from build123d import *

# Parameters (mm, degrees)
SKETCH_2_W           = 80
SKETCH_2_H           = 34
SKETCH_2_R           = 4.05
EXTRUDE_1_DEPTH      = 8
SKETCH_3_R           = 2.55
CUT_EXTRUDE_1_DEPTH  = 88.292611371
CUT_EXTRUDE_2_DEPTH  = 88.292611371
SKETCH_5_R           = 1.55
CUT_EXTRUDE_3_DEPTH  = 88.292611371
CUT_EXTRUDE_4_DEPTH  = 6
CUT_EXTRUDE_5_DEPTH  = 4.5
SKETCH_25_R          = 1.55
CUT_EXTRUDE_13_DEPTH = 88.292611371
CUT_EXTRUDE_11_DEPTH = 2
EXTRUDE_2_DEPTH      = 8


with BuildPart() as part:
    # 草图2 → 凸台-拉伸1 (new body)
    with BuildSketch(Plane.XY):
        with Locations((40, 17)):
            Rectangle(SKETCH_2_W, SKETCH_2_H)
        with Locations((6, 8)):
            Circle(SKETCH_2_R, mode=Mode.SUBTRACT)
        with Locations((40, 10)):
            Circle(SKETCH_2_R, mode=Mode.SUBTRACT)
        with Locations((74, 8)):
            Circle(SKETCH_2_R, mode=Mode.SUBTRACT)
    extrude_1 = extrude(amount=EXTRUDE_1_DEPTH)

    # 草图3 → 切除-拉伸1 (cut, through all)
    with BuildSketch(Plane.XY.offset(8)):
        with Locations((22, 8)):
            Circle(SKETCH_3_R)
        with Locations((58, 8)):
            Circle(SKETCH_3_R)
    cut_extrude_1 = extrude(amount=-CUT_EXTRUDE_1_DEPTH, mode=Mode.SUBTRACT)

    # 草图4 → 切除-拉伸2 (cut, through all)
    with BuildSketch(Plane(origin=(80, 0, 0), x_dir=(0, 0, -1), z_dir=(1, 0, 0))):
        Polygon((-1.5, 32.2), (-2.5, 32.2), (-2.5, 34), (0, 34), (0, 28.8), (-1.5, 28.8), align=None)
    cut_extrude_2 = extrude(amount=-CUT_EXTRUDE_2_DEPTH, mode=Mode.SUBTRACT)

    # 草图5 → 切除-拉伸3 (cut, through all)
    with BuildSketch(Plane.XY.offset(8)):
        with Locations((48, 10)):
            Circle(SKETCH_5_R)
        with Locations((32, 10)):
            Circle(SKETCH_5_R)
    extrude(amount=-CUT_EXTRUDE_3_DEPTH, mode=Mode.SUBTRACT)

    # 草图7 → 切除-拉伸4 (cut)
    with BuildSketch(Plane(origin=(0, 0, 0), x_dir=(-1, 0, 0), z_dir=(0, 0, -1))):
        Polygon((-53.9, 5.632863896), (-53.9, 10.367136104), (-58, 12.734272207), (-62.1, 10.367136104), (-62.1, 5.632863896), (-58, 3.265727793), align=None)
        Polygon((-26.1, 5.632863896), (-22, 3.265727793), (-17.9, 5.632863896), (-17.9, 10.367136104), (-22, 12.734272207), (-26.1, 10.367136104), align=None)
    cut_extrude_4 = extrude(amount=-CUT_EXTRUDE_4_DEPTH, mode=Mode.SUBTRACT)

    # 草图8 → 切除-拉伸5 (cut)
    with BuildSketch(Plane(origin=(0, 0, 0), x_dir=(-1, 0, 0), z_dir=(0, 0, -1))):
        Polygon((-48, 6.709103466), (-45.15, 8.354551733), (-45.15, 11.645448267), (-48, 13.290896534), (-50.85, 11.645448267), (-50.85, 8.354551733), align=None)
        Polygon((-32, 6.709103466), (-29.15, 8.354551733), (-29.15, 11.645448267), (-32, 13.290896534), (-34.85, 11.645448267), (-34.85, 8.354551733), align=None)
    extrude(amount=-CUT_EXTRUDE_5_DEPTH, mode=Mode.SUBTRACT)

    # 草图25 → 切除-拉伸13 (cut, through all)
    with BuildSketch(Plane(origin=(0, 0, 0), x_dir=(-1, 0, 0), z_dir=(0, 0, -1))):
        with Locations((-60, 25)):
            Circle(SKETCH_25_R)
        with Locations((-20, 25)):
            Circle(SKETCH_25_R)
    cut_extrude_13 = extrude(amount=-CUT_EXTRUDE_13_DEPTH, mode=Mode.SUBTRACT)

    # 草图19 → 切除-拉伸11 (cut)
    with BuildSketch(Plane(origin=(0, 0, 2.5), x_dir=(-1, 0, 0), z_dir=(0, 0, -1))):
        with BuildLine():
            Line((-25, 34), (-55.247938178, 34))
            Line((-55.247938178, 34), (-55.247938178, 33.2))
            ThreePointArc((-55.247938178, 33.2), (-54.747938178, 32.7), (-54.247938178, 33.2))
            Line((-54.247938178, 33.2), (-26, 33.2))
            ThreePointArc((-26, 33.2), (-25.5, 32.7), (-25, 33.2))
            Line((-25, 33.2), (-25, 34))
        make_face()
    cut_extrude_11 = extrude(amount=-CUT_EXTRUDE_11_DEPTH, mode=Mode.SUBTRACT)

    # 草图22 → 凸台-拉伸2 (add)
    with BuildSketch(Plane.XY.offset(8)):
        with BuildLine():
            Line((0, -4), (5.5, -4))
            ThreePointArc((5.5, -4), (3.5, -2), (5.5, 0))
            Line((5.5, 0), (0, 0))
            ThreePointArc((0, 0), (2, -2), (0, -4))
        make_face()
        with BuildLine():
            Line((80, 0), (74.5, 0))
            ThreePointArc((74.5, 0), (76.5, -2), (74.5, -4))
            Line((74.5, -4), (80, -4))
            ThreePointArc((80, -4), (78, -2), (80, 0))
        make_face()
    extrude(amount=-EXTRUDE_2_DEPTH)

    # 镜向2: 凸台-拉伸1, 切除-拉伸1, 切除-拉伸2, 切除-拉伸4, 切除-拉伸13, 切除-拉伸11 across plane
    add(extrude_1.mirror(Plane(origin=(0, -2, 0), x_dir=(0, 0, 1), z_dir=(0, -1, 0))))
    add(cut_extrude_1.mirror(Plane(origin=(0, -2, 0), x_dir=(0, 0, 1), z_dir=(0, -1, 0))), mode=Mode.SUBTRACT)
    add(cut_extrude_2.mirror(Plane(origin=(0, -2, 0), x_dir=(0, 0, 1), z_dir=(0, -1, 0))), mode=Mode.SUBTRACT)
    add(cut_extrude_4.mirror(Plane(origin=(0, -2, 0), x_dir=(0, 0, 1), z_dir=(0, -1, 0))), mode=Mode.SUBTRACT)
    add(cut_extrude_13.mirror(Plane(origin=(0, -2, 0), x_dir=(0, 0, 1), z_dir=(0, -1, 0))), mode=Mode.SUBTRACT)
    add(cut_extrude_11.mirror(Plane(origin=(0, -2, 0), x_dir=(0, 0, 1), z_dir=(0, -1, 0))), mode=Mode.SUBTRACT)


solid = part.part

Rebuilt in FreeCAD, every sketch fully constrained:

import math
import FreeCAD as App
import Part
import Sketcher
from FreeCAD import Vector
Q = App.Units.Quantity


def add_polygon(sketch, points):
    """Adds a closed chain of lines whose ends are joined by coincident constraints."""
    first, n = sketch.GeometryCount, len(points)
    for a, b in zip(points, points[1:] + points[:1]):
        sketch.addGeometry(Part.LineSegment(App.Vector(*a, 0), App.Vector(*b, 0)), False)
    for i in range(n):
        sketch.addConstraint(Sketcher.Constraint("Coincident", first + i, 2, first + (i + 1) % n, 1))

doc = App.newDocument("Part")
body = doc.addObject("PartDesign::Body", "Body")

sketch1 = body.newObject("Sketcher::SketchObject", "Sketch")
sketch1.AttachmentSupport = (doc.getObject("XY_Plane"), [""])
sketch1.MapMode = "FlatFace"
add_polygon(sketch1, [(0, 34), (0, 0), (80, 0), (80, 34)])
sketch1.addGeometry(Part.Circle(Vector(6, 8, 0), Vector(0, 0, 1), 4), False)
sketch1.addGeometry(Part.Circle(Vector(74, 8, 0), Vector(0, 0, 1), 4), False)
sketch1.addGeometry(Part.Circle(Vector(40, 10, 0), Vector(0, 0, 1), 4), False)
sketch1.addConstraint([
    Sketcher.Constraint("Vertical", 0),
    Sketcher.Constraint("Horizontal", 1),
    Sketcher.Constraint("Vertical", 2),
    Sketcher.Constraint("Horizontal", 3),
    Sketcher.Constraint("Coincident", 0, 2, -1, 1),
    Sketcher.Constraint("Equal", 4, 5),
    Sketcher.Constraint("Equal", 5, 6),
    Sketcher.Constraint("Horizontal", 4, 3, 5, 3),
    Sketcher.Constraint("Diameter", 4, Q("8.1 mm")),
    Sketcher.Constraint("DistanceX", 1, 1, 1, 2, Q("80 mm")),
    Sketcher.Constraint("DistanceY", 0, 2, 0, 1, Q("34 mm")),
    Sketcher.Constraint("DistanceX", -1, 1, 4, 3, Q("6 mm")),
    Sketcher.Constraint("DistanceY", -1, 1, 4, 3, Q("8 mm")),
    Sketcher.Constraint("DistanceX", -1, 1, 5, 3, Q("74 mm")),
    Sketcher.Constraint("DistanceX", -1, 1, 6, 3, Q("40 mm")),
    Sketcher.Constraint("DistanceY", -1, 1, 6, 3, Q("10 mm")),
])
pad1 = body.newObject("PartDesign::Pad", "Pad")
pad1.Profile = sketch1
pad1.Length = 8

sketch2 = body.newObject("Sketcher::SketchObject", "Sketch001")
sketch2.AttachmentSupport = (doc.getObject("XY_Plane"), [""])
sketch2.MapMode = "FlatFace"
sketch2.AttachmentOffset = App.Placement(Vector(0, 0, 8), App.Rotation())
sketch2.addGeometry([
    Part.Circle(Vector(22, 8, 0), Vector(0, 0, 1), 2.5),
    Part.Circle(Vector(58, 8, 0), Vector(0, 0, 1), 2.5),
], False)
sketch2.addConstraint([
    Sketcher.Constraint("Equal", 0, 1),
    Sketcher.Constraint("Horizontal", 0, 3, 1, 3),
    Sketcher.Constraint("Diameter", 0, Q("5.1 mm")),
    Sketcher.Constraint("DistanceX", -1, 1, 0, 3, Q("22 mm")),
    Sketcher.Constraint("DistanceY", -1, 1, 0, 3, Q("8 mm")),
    Sketcher.Constraint("DistanceX", -1, 1, 1, 3, Q("58 mm")),
])
pocket1 = body.newObject("PartDesign::Pocket", "Pocket")
pocket1.Profile = sketch2
pocket1.Type = "ThroughAll"

sketch3 = body.newObject("Sketcher::SketchObject", "Sketch002")
sketch3.AttachmentSupport = (doc.getObject("YZ_Plane"), [""])
sketch3.MapMode = "FlatFace"
sketch3.AttachmentOffset = App.Placement(Vector(0, 0, 80), App.Rotation())
add_polygon(sketch3, [(32.2, 2.5), (32.2, 1.5), (28.8, 1.5), (28.8, 0), (34, 0), (34, 2.5)])
sketch3.addConstraint([
    Sketcher.Constraint("Vertical", 0),
    Sketcher.Constraint("Horizontal", 1),
    Sketcher.Constraint("Vertical", 2),
    Sketcher.Constraint("Horizontal", 3),
    Sketcher.Constraint("Vertical", 4),
    Sketcher.Constraint("Horizontal", 5),
    Sketcher.Constraint("PointOnObject", 2, 2, -1),
    Sketcher.Constraint("DistanceY", 0, 2, 0, 1, Q("1 mm")),
    Sketcher.Constraint("DistanceX", 1, 2, 1, 1, Q("3.4 mm")),
    Sketcher.Constraint("DistanceX", 3, 1, 3, 2, Q("5.2 mm")),
    Sketcher.Constraint("DistanceY", 2, 2, 2, 1, Q("1.5 mm")),
    Sketcher.Constraint("DistanceX", -1, 1, 3, 2, Q("34 mm")),
])
pocket2 = body.newObject("PartDesign::Pocket", "Pocket001")
pocket2.Profile = sketch3
pocket2.Type = "ThroughAll"

sketch4 = body.newObject("Sketcher::SketchObject", "Sketch003")
sketch4.AttachmentSupport = (doc.getObject("XY_Plane"), [""])
sketch4.MapMode = "FlatFace"
sketch4.AttachmentOffset = App.Placement(Vector(0, 0, 8), App.Rotation())
sketch4.addGeometry([
    Part.Circle(Vector(48, 10, 0), Vector(0, 0, 1), 1.6),
    Part.Circle(Vector(32, 10, 0), Vector(0, 0, 1), 1.6),
], False)
sketch4.addConstraint([
    Sketcher.Constraint("Equal", 0, 1),
    Sketcher.Constraint("Horizontal", 0, 3, 1, 3),
    Sketcher.Constraint("Diameter", 0, Q("3.1 mm")),
    Sketcher.Constraint("DistanceX", -1, 1, 0, 3, Q("48 mm")),
    Sketcher.Constraint("DistanceY", -1, 1, 0, 3, Q("10 mm")),
    Sketcher.Constraint("DistanceX", -1, 1, 1, 3, Q("32 mm")),
])
pocket3 = body.newObject("PartDesign::Pocket", "Pocket002")
pocket3.Profile = sketch4
pocket3.Type = "ThroughAll"

sketch5 = body.newObject("Sketcher::SketchObject", "Sketch004")
sketch5.AttachmentSupport = (doc.getObject("XY_Plane"), [""])
sketch5.MapMode = "FlatFace"
add_polygon(sketch5, [(53.9, 5.6), (53.9, 10.4), (58, 12.7), (62.1, 10.4), (62.1, 5.6), (58, 3.3)])
add_polygon(sketch5, [(26.1, 5.6), (22, 3.3), (17.9, 5.6), (17.9, 10.4), (22, 12.7), (26.1, 10.4)])
sketch5.addConstraint([
    Sketcher.Constraint("Vertical", 0),
    Sketcher.Constraint("Vertical", 3),
    Sketcher.Constraint("Vertical", 8),
    Sketcher.Constraint("Vertical", 11),
    Sketcher.Constraint("Parallel", 1, 4),
    Sketcher.Constraint("Parallel", 2, 5),
    Sketcher.Constraint("Parallel", 4, 6),
    Sketcher.Constraint("Parallel", 5, 7),
    Sketcher.Constraint("Parallel", 6, 9),
    Sketcher.Constraint("Parallel", 7, 10),
    Sketcher.Constraint("Horizontal", 0, 2, 2, 2),
    Sketcher.Constraint("Horizontal", 3, 2, 5, 2),
    Sketcher.Constraint("Horizontal", 4, 2, 6, 2),
    Sketcher.Constraint("Horizontal", 5, 2, 7, 2),
    Sketcher.Constraint("Horizontal", 2, 2, 8, 2),
    Sketcher.Constraint("Horizontal", 1, 2, 9, 2),
    Sketcher.Constraint("Horizontal", 8, 2, 10, 2),
    Sketcher.Constraint("Vertical", 1, 2, 4, 2),
    Sketcher.Constraint("Angle", 1, Q("30 deg")),
    Sketcher.Constraint("DistanceX", -1, 1, 1, 2, Q("58 mm")),
    Sketcher.Constraint("DistanceX", -1, 1, 6, 2, Q("22 mm")),
    Sketcher.Constraint("DistanceX", -1, 1, 0, 2, Q("53.9 mm")),
    Sketcher.Constraint("DistanceY", 0, 1, 0, 2, Q("4.734272 mm")),
    Sketcher.Constraint("DistanceY", -1, 1, 0, 2, Q("10.367136 mm")),
])
pocket4 = body.newObject("PartDesign::Pocket", "Pocket003")
pocket4.Profile = sketch5
pocket4.Length = 6
pocket4.Reversed = True

sketch6 = body.newObject("Sketcher::SketchObject", "Sketch005")
sketch6.AttachmentSupport = (doc.getObject("XY_Plane"), [""])
sketch6.MapMode = "FlatFace"
add_polygon(sketch6, [(48, 6.7), (45.1, 8.4), (45.1, 11.6), (48, 13.3), (50.9, 11.6), (50.9, 8.4)])
add_polygon(sketch6, [(32, 6.7), (29.1, 8.4), (29.1, 11.6), (32, 13.3), (34.9, 11.6), (34.9, 8.4)])
sketch6.addConstraint([
    Sketcher.Constraint("Vertical", 1),
    Sketcher.Constraint("Vertical", 4),
    Sketcher.Constraint("Vertical", 7),
    Sketcher.Constraint("Vertical", 10),
    Sketcher.Constraint("Parallel", 0, 3),
    Sketcher.Constraint("Parallel", 2, 5),
    Sketcher.Constraint("Parallel", 3, 6),
    Sketcher.Constraint("Parallel", 5, 8),
    Sketcher.Constraint("Parallel", 6, 9),
    Sketcher.Constraint("Parallel", 8, 11),
    Sketcher.Constraint("Horizontal", 1, 2, 3, 2),
    Sketcher.Constraint("Horizontal", 0, 2, 4, 2),
    Sketcher.Constraint("Horizontal", 4, 2, 6, 2),
    Sketcher.Constraint("Horizontal", 3, 2, 7, 2),
    Sketcher.Constraint("Horizontal", 2, 2, 8, 2),
    Sketcher.Constraint("Horizontal", 7, 2, 9, 2),
    Sketcher.Constraint("Horizontal", 6, 2, 10, 2),
    Sketcher.Constraint("Vertical", 2, 2, 5, 2),
    Sketcher.Constraint("Angle", 0, Q("150 deg")),
    Sketcher.Constraint("DistanceX", -1, 1, 2, 2, Q("48 mm")),
    Sketcher.Constraint("DistanceX", -1, 1, 8, 2, Q("32 mm")),
    Sketcher.Constraint("DistanceX", 1, 2, 3, 2, Q("5.7 mm")),
    Sketcher.Constraint("DistanceY", 1, 1, 1, 2, Q("3.290897 mm")),
    Sketcher.Constraint("DistanceY", -1, 1, 0, 2, Q("8.354552 mm")),
])
pocket5 = body.newObject("PartDesign::Pocket", "Pocket004")
pocket5.Profile = sketch6
pocket5.Length = 4.5
pocket5.Reversed = True

sketch7 = body.newObject("Sketcher::SketchObject", "Sketch006")
sketch7.AttachmentSupport = (doc.getObject("XY_Plane"), [""])
sketch7.MapMode = "FlatFace"
sketch7.addGeometry([
    Part.Circle(Vector(60, 25, 0), Vector(0, 0, 1), 1.6),
    Part.Circle(Vector(20, 25, 0), Vector(0, 0, 1), 1.6),
], False)
sketch7.addConstraint([
    Sketcher.Constraint("Equal", 0, 1),
    Sketcher.Constraint("Horizontal", 0, 3, 1, 3),
    Sketcher.Constraint("Diameter", 0, Q("3.1 mm")),
    Sketcher.Constraint("DistanceX", -1, 1, 0, 3, Q("60 mm")),
    Sketcher.Constraint("DistanceY", -1, 1, 0, 3, Q("25 mm")),
    Sketcher.Constraint("DistanceX", -1, 1, 1, 3, Q("20 mm")),
])
pocket6 = body.newObject("PartDesign::Pocket", "Pocket005")
pocket6.Profile = sketch7
pocket6.Type = "ThroughAll"
pocket6.Reversed = True

sketch8 = body.newObject("Sketcher::SketchObject", "Sketch007")
sketch8.AttachmentSupport = (doc.getObject("XY_Plane"), [""])
sketch8.MapMode = "FlatFace"
sketch8.AttachmentOffset = App.Placement(Vector(0, 0, 2.5), App.Rotation())
sketch8.addGeometry([
    Part.LineSegment(Vector(25, 34, 0), Vector(55.2, 34, 0)),
    Part.LineSegment(Vector(55.2, 34, 0), Vector(55.2, 33.2, 0)),
    Part.ArcOfCircle(Part.Circle(Vector(54.7, 33.2, 0), Vector(0, 0, 1), 0.5), math.radians(180), math.radians(360)),
    Part.LineSegment(Vector(54.2, 33.2, 0), Vector(26, 33.2, 0)),
    Part.ArcOfCircle(Part.Circle(Vector(25.5, 33.2, 0), Vector(0, 0, 1), 0.5), math.radians(180), math.radians(360)),
    Part.LineSegment(Vector(25, 33.2, 0), Vector(25, 34, 0)),
], False)
sketch8.addConstraint([
    Sketcher.Constraint("Coincident", 0, 2, 1, 1),
    Sketcher.Constraint("Tangent", 1, 2, 2, 2),
    Sketcher.Constraint("Coincident", 2, 1, 3, 1),
    Sketcher.Constraint("Coincident", 3, 2, 4, 2),
    Sketcher.Constraint("Tangent", 4, 1, 5, 1),
    Sketcher.Constraint("Coincident", 5, 2, 0, 1),
    Sketcher.Constraint("Horizontal", 0),
    Sketcher.Constraint("Vertical", 1),
    Sketcher.Constraint("Horizontal", 3),
    Sketcher.Constraint("Vertical", 5),
    Sketcher.Constraint("Equal", 2, 4),
    Sketcher.Constraint("Horizontal", 2, 3, 4, 3),
    Sketcher.Constraint("Horizontal", 1, 2, 2, 1),
    Sketcher.Constraint("Radius", 2, Q("0.5 mm")),
    Sketcher.Constraint("DistanceY", 1, 2, 1, 1, Q("0.8 mm")),
    Sketcher.Constraint("DistanceY", -1, 1, 0, 2, Q("34 mm")),
    Sketcher.Constraint("DistanceX", -1, 1, 3, 2, Q("26 mm")),
    Sketcher.Constraint("DistanceX", 0, 1, 0, 2, Q("30.247938 mm")),
])
pocket7 = body.newObject("PartDesign::Pocket", "Pocket006")
pocket7.Profile = sketch8
pocket7.Length = 2
pocket7.Reversed = True

sketch9 = body.newObject("Sketcher::SketchObject", "Sketch008")
sketch9.AttachmentSupport = (doc.getObject("XY_Plane"), [""])
sketch9.MapMode = "FlatFace"
sketch9.AttachmentOffset = App.Placement(Vector(0, 0, 8), App.Rotation())
sketch9.addGeometry([
    Part.LineSegment(Vector(0, -4, 0), Vector(5.5, -4, 0)),
    Part.ArcOfCircle(Part.Circle(Vector(5.5, -2, 0), Vector(0, 0, 1), 2), math.radians(90), math.radians(270)),
    Part.LineSegment(Vector(5.5, 0, 0), Vector(0, 0, 0)),
    Part.ArcOfCircle(Part.Circle(Vector(0, -2, 0), Vector(0, 0, 1), 2), math.radians(-90), math.radians(90)),
    Part.LineSegment(Vector(80, 0, 0), Vector(74.5, 0, 0)),
    Part.ArcOfCircle(Part.Circle(Vector(74.5, -2, 0), Vector(0, 0, 1), 2), math.radians(-90), math.radians(90)),
    Part.LineSegment(Vector(74.5, -4, 0), Vector(80, -4, 0)),
    Part.ArcOfCircle(Part.Circle(Vector(80, -2, 0), Vector(0, 0, 1), 2), math.radians(90), math.radians(270)),
], False)
sketch9.addConstraint([
    Sketcher.Constraint("Tangent", 0, 2, 1, 2),
    Sketcher.Constraint("Tangent", 1, 1, 2, 1),
    Sketcher.Constraint("Tangent", 2, 2, 3, 2),
    Sketcher.Constraint("Tangent", 3, 1, 0, 1),
    Sketcher.Constraint("Tangent", 4, 2, 5, 2),
    Sketcher.Constraint("Tangent", 5, 1, 6, 1),
    Sketcher.Constraint("Tangent", 6, 2, 7, 2),
    Sketcher.Constraint("Tangent", 7, 1, 4, 1),
    Sketcher.Constraint("Horizontal", 0),
    Sketcher.Constraint("Horizontal", 2),
    Sketcher.Constraint("Horizontal", 4),
    Sketcher.Constraint("Horizontal", 6),
    Sketcher.Constraint("Coincident", 2, 2, -1, 1),
    Sketcher.Constraint("Equal", 3, 5),
    Sketcher.Constraint("PointOnObject", 4, 2, -1),
    Sketcher.Constraint("Equal", 2, 4),
    Sketcher.Constraint("Radius", 1, Q("2 mm")),
    Sketcher.Constraint("DistanceX", 0, 1, 0, 2, Q("5.5 mm")),
    Sketcher.Constraint("DistanceX", -1, 1, 7, 3, Q("80 mm")),
])
pad2 = body.newObject("PartDesign::Pad", "Pad001")
pad2.Profile = sketch9
pad2.Length = 8
pad2.Reversed = True
doc.recompute()

datumplane = body.newObject("PartDesign::Plane", "DatumPlane")
datumplane.AttachmentSupport = (doc.getObject("XZ_Plane"), [""])
datumplane.MapMode = "FlatFace"
datumplane.AttachmentOffset = App.Placement(Vector(0, 0, 2), App.Rotation())
mirrored = body.newObject("PartDesign::Mirrored", "Mirrored")
mirrored.Originals = [pad1, pocket1, pocket2, pocket4, pocket6, pocket7]
mirrored.MirrorPlane = (datumplane, [""])
body.Tip = mirrored

doc.recompute()
